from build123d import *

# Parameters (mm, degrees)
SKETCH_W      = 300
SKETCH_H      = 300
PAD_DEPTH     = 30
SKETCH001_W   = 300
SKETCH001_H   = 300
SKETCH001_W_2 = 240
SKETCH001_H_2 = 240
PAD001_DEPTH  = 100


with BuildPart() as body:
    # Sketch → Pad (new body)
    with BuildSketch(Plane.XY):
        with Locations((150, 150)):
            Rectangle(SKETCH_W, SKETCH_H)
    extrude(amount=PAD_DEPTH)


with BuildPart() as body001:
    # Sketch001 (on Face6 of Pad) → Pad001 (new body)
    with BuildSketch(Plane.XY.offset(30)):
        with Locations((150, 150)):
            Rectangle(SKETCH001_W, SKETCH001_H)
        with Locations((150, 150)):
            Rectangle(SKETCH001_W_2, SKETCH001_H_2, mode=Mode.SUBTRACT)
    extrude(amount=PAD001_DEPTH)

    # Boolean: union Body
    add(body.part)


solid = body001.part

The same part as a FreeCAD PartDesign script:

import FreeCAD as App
import Part
import Sketcher
from FreeCAD import Vector
Q = App.Units.Quantity


def add_polygon(sketch, points):
    """Adds a closed chain of lines whose ends are joined by coincident constraints."""
    first, n = sketch.GeometryCount, len(points)
    for a, b in zip(points, points[1:] + points[:1]):
        sketch.addGeometry(Part.LineSegment(App.Vector(*a, 0), App.Vector(*b, 0)), False)
    for i in range(n):
        sketch.addConstraint(Sketcher.Constraint("Coincident", first + i, 2, first + (i + 1) % n, 1))

doc = App.newDocument("Part")
params = doc.addObject("Spreadsheet::Sheet", "Params")
for row, (alias, value) in enumerate([
    ("sketch1_width", "300 mm"),
    ("pad1_length", "30 mm"),
    ("sketch2_width", "300 mm"),
    ("sketch2_width2", "240 mm"),
    ("pad2_length", "100 mm"),
], start=1):
    params.set(f"A{row}", alias)
    params.set(f"B{row}", "=" + value)
    params.setAlias(f"B{row}", alias)

body = doc.addObject("PartDesign::Body", "Body")

# Sketch on XY plane
sketch1 = body.newObject("Sketcher::SketchObject", "Sketch")
sketch1.AttachmentSupport = (doc.getObject("XY_Plane"), [""])
sketch1.MapMode = "FlatFace"
add_polygon(sketch1, [(0, 300), (0, 0), (300, 0), (300, 300)])  # lines 0-3
sketch1.addConstraint(Sketcher.Constraint("Vertical", 0))
sketch1.addConstraint(Sketcher.Constraint("Horizontal", 1))
sketch1.addConstraint(Sketcher.Constraint("Vertical", 2))
sketch1.addConstraint(Sketcher.Constraint("Horizontal", 3))
sketch1.addConstraint(Sketcher.Constraint("Coincident", 0, 2, -1, 1))
sketch1.addConstraint(Sketcher.Constraint("Equal", 3, 0))
sketch1.addConstraint(Sketcher.Constraint("DistanceX", 1, 1, 1, 2, Q("300 mm")))
sketch1.setExpression("Constraints[10]", "Params.sketch1_width")
pad1 = body.newObject("PartDesign::Pad", "Pad")
pad1.Profile = sketch1
pad1.setExpression("Length", "Params.pad1_length")
body2 = doc.addObject("PartDesign::Body", "Body001")

# Sketch on XY plane
sketch2 = body2.newObject("Sketcher::SketchObject", "Sketch001")
sketch2.AttachmentSupport = (doc.getObject("XY_Plane001"), [""])
sketch2.MapMode = "FlatFace"
sketch2.AttachmentOffset = App.Placement(Vector(0, 0, 30), App.Rotation())
add_polygon(sketch2, [(0, 300), (0, 0), (300, 0), (300, 300)])  # lines 0-3
add_polygon(sketch2, [(270, 30), (30, 30), (30, 270), (270, 270)])  # lines 4-7
sketch2.addConstraint(Sketcher.Constraint("Vertical", 0))
sketch2.addConstraint(Sketcher.Constraint("Horizontal", 1))
sketch2.addConstraint(Sketcher.Constraint("Vertical", 2))
sketch2.addConstraint(Sketcher.Constraint("Horizontal", 3))
sketch2.addConstraint(Sketcher.Constraint("Horizontal", 4))
sketch2.addConstraint(Sketcher.Constraint("Vertical", 5))
sketch2.addConstraint(Sketcher.Constraint("Horizontal", 6))
sketch2.addConstraint(Sketcher.Constraint("Vertical", 7))
sketch2.addConstraint(Sketcher.Constraint("Coincident", 0, 2, -1, 1))
sketch2.addConstraint(Sketcher.Constraint("Equal", 3, 0))
sketch2.addConstraint(Sketcher.Constraint("Equal", 6, 5))
sketch2.addConstraint(Sketcher.Constraint("DistanceX", 1, 1, 1, 2, Q("300 mm")))
sketch2.addConstraint(Sketcher.Constraint("DistanceX", 4, 2, 4, 1, Q("240 mm")))
sketch2.addConstraint(Sketcher.Constraint("DistanceX", -1, 1, 4, 2, Q("30 mm")))
sketch2.addConstraint(Sketcher.Constraint("DistanceY", -1, 1, 4, 2, Q("30 mm")))
sketch2.setExpression("Constraints[19]", "Params.sketch2_width")
sketch2.setExpression("Constraints[20]", "Params.sketch2_width2")
pad2 = body2.newObject("PartDesign::Pad", "Pad001")
pad2.Profile = sketch2
pad2.setExpression("Length", "Params.pad2_length")
doc.recompute()

boolean = body2.newObject("PartDesign::Boolean", "Boolean")
boolean.Type = "Fuse"
boolean.addObjects([body])

doc.recompute()
